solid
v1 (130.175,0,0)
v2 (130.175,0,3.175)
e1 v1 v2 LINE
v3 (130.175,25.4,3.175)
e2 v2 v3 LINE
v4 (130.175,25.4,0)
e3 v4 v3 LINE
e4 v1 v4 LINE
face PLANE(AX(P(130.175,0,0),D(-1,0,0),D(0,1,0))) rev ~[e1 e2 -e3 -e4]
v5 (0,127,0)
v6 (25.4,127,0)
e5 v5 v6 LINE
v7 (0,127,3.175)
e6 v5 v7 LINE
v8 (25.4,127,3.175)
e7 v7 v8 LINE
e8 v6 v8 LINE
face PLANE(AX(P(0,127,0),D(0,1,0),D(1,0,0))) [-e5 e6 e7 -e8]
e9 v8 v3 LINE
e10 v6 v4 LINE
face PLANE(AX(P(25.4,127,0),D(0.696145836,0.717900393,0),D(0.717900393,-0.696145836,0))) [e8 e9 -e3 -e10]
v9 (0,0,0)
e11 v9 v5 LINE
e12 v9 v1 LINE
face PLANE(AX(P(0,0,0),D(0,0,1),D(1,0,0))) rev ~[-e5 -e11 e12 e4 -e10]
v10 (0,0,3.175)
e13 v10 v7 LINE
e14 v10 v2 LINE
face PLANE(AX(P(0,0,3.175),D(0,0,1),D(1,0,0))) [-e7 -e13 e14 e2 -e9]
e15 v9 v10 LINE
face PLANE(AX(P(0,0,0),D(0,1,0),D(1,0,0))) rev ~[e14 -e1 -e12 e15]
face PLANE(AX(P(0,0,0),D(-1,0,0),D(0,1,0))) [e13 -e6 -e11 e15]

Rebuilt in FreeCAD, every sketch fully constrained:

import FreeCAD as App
import Part
import Sketcher
Q = App.Units.Quantity


def add_polygon(sketch, points):
    """Adds a closed chain of lines whose ends are joined by coincident constraints."""
    first, n = sketch.GeometryCount, len(points)
    for a, b in zip(points, points[1:] + points[:1]):
        sketch.addGeometry(Part.LineSegment(App.Vector(*a, 0), App.Vector(*b, 0)), False)
    for i in range(n):
        sketch.addConstraint(Sketcher.Constraint("Coincident", first + i, 2, first + (i + 1) % n, 1))

doc = App.newDocument("Part")
params = doc.addObject("Spreadsheet::Sheet", "Params")
for row, (alias, value) in enumerate([
    ("sketch1_width", "1 in"),
    ("sketch1_height", "5 in"),
    ("sketch1_width2", "5.125 in"),
    ("pad1_length", "0.125 in"),
], start=1):
    params.set(f"A{row}", alias)
    params.set(f"B{row}", "=" + value)
    params.setAlias(f"B{row}", alias)

body = doc.addObject("PartDesign::Body", "Body")

# Sketch on XY plane
sketch1 = body.newObject("Sketcher::SketchObject", "Sketch")
sketch1.AttachmentSupport = (doc.getObject("XY_Plane"), [""])
sketch1.MapMode = "FlatFace"
add_polygon(sketch1, [(0, 127), (0, 0), (130, 0), (130, 25), (25, 127)])  # lines 0-4
sketch1.addConstraint([
    Sketcher.Constraint("Vertical", 0),
    Sketcher.Constraint("Horizontal", 1),
    Sketcher.Constraint("Vertical", 2),
    Sketcher.Constraint("Horizontal", 4),
    Sketcher.Constraint("Coincident", 0, 2, -1, 1),
    Sketcher.Constraint("Equal", 4, 2),
    Sketcher.Constraint("DistanceX", 4, 2, 4, 1, Q("1 in")),
    Sketcher.Constraint("DistanceY", 0, 2, 0, 1, Q("5 in")),
    Sketcher.Constraint("DistanceX", 1, 1, 1, 2, Q("5.125 in")),
])
sketch1.setExpression("Constraints[11]", "Params.sketch1_width")
sketch1.setExpression("Constraints[12]", "Params.sketch1_height")
sketch1.setExpression("Constraints[13]", "Params.sketch1_width2")
pad1 = body.newObject("PartDesign::Pad", "Pad")
pad1.Profile = sketch1
pad1.setExpression("Length", "Params.pad1_length")

doc.recompute()
